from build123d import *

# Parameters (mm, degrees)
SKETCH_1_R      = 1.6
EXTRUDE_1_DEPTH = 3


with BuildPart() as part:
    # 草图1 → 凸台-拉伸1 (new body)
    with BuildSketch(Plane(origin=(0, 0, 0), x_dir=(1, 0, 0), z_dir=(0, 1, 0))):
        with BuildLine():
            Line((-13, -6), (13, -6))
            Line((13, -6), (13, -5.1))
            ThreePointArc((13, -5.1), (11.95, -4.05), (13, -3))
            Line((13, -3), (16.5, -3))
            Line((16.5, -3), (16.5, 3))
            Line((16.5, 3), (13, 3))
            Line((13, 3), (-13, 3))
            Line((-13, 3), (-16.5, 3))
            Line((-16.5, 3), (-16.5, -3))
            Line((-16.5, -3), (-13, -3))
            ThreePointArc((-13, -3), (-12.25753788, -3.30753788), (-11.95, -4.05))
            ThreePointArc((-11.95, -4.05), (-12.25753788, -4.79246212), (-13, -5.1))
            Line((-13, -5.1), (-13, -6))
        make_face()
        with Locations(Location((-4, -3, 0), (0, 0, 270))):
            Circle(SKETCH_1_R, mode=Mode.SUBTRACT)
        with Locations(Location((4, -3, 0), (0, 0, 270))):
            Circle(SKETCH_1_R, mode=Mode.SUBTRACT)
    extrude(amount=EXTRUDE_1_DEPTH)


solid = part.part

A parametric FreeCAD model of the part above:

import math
import FreeCAD as App
import Part
import Sketcher
from FreeCAD import Vector

doc = App.newDocument("Part")
body = doc.addObject("PartDesign::Body", "Body")

# Sketch on XZ plane
sketch1 = body.newObject("Sketcher::SketchObject", "Sketch")
sketch1.AttachmentSupport = (doc.getObject("XZ_Plane"), [""])
sketch1.MapMode = "FlatFace"
sketch1.addGeometry([
    Part.LineSegment(Vector(-13, 6, 0), Vector(13, 6, 0)),  # 0
    Part.LineSegment(Vector(13, 6, 0), Vector(13, 5.1, 0)),  # 1
    Part.ArcOfCircle(Part.Circle(Vector(13, 4, 0), Vector(0, 0, 1), 1.1), math.radians(90), math.radians(270)),  # 2
    Part.LineSegment(Vector(13, 3, 0), Vector(16.5, 3, 0)),  # 3
    Part.LineSegment(Vector(16.5, 3, 0), Vector(16.5, -3, 0)),  # 4
    Part.LineSegment(Vector(16.5, -3, 0), Vector(-16.5, -3, 0)),  # 5
    Part.LineSegment(Vector(-16.5, -3, 0), Vector(-16.5, 3, 0)),  # 6
    Part.LineSegment(Vector(-16.5, 3, 0), Vector(-13, 3, 0)),  # 7
    Part.ArcOfCircle(Part.Circle(Vector(-13, 4.1, 0), Vector(0, 0, 1), 1.1), math.radians(-90), math.radians(0)),  # 8
    Part.ArcOfCircle(Part.Circle(Vector(-13, 4, 0), Vector(0, 0, 1), 1.1), math.radians(0), math.radians(90)),  # 9
    Part.LineSegment(Vector(-13, 5.1, 0), Vector(-13, 6, 0)),  # 10
    Part.Circle(Vector(-4, 3, 0), Vector(0, 0, 1), 1.6),  # 11
    Part.Circle(Vector(4, 3, 0), Vector(0, 0, 1), 1.6),  # 12
], False)
sketch1.addConstraint([
    Sketcher.Constraint("Coincident", 0, 2, 1, 1),
    Sketcher.Constraint("Coincident", 1, 2, 2, 1),
    Sketcher.Constraint("Tangent", 2, 2, 3, 1),
    Sketcher.Constraint("Coincident", 3, 2, 4, 1),
    Sketcher.Constraint("Coincident", 4, 2, 5, 1),
    Sketcher.Constraint("Coincident", 5, 2, 6, 1),
    Sketcher.Constraint("Coincident", 6, 2, 7, 1),
    Sketcher.Constraint("Tangent", 7, 2, 8, 1),
    Sketcher.Constraint("Tangent", 8, 2, 9, 1),
    Sketcher.Constraint("Coincident", 9, 2, 10, 1),
    Sketcher.Constraint("Coincident", 10, 2, 0, 1),
    Sketcher.Constraint("Horizontal", 0),
    Sketcher.Constraint("Vertical", 1),
    Sketcher.Constraint("Horizontal", 3),
    Sketcher.Constraint("Vertical", 4),
    Sketcher.Constraint("Horizontal", 5),
    Sketcher.Constraint("Vertical", 6),
    Sketcher.Constraint("Horizontal", 7),
    Sketcher.Constraint("Vertical", 10),
    Sketcher.Constraint("Equal", 2, 8),
    Sketcher.Constraint("Equal", 8, 9),
    Sketcher.Constraint("Equal", 11, 12),
    Sketcher.Constraint("Symmetric", 3, 2, 5, 2, -1, 1),
    Sketcher.Constraint("Symmetric", 2, 3, 8, 3, -2),
    Sketcher.Constraint("Symmetric", 11, 3, 12, 3, -2),
    Sketcher.Constraint("Horizontal", 12, 3, 2, 2),
    Sketcher.Constraint("Horizontal", 9, 3, 8, 2),
    Sketcher.Constraint("Vertical", 2, 3, 0, 2),
    Sketcher.Constraint("Vertical", 7, 2, 9, 2),
    Sketcher.Constraint("Diameter", 11, 3.2),
    Sketcher.Constraint("DistanceX", 0, 1, 0, 2, 26.0),
    Sketcher.Constraint("DistanceX", 5, 2, 5, 1, 33.0),
    Sketcher.Constraint("DistanceY", 4, 2, 4, 1, 6.0),
    Sketcher.Constraint("Radius", 2, 1.05),
    Sketcher.Constraint("DistanceY", 1, 2, 1, 1, 0.9),
    Sketcher.Constraint("DistanceX", 11, 3, -1, 1, 4.0),
])
pad1 = body.newObject("PartDesign::Pad", "Pad")
pad1.Profile = sketch1
pad1.Length = 3
pad1.Reversed = True

doc.recompute()
